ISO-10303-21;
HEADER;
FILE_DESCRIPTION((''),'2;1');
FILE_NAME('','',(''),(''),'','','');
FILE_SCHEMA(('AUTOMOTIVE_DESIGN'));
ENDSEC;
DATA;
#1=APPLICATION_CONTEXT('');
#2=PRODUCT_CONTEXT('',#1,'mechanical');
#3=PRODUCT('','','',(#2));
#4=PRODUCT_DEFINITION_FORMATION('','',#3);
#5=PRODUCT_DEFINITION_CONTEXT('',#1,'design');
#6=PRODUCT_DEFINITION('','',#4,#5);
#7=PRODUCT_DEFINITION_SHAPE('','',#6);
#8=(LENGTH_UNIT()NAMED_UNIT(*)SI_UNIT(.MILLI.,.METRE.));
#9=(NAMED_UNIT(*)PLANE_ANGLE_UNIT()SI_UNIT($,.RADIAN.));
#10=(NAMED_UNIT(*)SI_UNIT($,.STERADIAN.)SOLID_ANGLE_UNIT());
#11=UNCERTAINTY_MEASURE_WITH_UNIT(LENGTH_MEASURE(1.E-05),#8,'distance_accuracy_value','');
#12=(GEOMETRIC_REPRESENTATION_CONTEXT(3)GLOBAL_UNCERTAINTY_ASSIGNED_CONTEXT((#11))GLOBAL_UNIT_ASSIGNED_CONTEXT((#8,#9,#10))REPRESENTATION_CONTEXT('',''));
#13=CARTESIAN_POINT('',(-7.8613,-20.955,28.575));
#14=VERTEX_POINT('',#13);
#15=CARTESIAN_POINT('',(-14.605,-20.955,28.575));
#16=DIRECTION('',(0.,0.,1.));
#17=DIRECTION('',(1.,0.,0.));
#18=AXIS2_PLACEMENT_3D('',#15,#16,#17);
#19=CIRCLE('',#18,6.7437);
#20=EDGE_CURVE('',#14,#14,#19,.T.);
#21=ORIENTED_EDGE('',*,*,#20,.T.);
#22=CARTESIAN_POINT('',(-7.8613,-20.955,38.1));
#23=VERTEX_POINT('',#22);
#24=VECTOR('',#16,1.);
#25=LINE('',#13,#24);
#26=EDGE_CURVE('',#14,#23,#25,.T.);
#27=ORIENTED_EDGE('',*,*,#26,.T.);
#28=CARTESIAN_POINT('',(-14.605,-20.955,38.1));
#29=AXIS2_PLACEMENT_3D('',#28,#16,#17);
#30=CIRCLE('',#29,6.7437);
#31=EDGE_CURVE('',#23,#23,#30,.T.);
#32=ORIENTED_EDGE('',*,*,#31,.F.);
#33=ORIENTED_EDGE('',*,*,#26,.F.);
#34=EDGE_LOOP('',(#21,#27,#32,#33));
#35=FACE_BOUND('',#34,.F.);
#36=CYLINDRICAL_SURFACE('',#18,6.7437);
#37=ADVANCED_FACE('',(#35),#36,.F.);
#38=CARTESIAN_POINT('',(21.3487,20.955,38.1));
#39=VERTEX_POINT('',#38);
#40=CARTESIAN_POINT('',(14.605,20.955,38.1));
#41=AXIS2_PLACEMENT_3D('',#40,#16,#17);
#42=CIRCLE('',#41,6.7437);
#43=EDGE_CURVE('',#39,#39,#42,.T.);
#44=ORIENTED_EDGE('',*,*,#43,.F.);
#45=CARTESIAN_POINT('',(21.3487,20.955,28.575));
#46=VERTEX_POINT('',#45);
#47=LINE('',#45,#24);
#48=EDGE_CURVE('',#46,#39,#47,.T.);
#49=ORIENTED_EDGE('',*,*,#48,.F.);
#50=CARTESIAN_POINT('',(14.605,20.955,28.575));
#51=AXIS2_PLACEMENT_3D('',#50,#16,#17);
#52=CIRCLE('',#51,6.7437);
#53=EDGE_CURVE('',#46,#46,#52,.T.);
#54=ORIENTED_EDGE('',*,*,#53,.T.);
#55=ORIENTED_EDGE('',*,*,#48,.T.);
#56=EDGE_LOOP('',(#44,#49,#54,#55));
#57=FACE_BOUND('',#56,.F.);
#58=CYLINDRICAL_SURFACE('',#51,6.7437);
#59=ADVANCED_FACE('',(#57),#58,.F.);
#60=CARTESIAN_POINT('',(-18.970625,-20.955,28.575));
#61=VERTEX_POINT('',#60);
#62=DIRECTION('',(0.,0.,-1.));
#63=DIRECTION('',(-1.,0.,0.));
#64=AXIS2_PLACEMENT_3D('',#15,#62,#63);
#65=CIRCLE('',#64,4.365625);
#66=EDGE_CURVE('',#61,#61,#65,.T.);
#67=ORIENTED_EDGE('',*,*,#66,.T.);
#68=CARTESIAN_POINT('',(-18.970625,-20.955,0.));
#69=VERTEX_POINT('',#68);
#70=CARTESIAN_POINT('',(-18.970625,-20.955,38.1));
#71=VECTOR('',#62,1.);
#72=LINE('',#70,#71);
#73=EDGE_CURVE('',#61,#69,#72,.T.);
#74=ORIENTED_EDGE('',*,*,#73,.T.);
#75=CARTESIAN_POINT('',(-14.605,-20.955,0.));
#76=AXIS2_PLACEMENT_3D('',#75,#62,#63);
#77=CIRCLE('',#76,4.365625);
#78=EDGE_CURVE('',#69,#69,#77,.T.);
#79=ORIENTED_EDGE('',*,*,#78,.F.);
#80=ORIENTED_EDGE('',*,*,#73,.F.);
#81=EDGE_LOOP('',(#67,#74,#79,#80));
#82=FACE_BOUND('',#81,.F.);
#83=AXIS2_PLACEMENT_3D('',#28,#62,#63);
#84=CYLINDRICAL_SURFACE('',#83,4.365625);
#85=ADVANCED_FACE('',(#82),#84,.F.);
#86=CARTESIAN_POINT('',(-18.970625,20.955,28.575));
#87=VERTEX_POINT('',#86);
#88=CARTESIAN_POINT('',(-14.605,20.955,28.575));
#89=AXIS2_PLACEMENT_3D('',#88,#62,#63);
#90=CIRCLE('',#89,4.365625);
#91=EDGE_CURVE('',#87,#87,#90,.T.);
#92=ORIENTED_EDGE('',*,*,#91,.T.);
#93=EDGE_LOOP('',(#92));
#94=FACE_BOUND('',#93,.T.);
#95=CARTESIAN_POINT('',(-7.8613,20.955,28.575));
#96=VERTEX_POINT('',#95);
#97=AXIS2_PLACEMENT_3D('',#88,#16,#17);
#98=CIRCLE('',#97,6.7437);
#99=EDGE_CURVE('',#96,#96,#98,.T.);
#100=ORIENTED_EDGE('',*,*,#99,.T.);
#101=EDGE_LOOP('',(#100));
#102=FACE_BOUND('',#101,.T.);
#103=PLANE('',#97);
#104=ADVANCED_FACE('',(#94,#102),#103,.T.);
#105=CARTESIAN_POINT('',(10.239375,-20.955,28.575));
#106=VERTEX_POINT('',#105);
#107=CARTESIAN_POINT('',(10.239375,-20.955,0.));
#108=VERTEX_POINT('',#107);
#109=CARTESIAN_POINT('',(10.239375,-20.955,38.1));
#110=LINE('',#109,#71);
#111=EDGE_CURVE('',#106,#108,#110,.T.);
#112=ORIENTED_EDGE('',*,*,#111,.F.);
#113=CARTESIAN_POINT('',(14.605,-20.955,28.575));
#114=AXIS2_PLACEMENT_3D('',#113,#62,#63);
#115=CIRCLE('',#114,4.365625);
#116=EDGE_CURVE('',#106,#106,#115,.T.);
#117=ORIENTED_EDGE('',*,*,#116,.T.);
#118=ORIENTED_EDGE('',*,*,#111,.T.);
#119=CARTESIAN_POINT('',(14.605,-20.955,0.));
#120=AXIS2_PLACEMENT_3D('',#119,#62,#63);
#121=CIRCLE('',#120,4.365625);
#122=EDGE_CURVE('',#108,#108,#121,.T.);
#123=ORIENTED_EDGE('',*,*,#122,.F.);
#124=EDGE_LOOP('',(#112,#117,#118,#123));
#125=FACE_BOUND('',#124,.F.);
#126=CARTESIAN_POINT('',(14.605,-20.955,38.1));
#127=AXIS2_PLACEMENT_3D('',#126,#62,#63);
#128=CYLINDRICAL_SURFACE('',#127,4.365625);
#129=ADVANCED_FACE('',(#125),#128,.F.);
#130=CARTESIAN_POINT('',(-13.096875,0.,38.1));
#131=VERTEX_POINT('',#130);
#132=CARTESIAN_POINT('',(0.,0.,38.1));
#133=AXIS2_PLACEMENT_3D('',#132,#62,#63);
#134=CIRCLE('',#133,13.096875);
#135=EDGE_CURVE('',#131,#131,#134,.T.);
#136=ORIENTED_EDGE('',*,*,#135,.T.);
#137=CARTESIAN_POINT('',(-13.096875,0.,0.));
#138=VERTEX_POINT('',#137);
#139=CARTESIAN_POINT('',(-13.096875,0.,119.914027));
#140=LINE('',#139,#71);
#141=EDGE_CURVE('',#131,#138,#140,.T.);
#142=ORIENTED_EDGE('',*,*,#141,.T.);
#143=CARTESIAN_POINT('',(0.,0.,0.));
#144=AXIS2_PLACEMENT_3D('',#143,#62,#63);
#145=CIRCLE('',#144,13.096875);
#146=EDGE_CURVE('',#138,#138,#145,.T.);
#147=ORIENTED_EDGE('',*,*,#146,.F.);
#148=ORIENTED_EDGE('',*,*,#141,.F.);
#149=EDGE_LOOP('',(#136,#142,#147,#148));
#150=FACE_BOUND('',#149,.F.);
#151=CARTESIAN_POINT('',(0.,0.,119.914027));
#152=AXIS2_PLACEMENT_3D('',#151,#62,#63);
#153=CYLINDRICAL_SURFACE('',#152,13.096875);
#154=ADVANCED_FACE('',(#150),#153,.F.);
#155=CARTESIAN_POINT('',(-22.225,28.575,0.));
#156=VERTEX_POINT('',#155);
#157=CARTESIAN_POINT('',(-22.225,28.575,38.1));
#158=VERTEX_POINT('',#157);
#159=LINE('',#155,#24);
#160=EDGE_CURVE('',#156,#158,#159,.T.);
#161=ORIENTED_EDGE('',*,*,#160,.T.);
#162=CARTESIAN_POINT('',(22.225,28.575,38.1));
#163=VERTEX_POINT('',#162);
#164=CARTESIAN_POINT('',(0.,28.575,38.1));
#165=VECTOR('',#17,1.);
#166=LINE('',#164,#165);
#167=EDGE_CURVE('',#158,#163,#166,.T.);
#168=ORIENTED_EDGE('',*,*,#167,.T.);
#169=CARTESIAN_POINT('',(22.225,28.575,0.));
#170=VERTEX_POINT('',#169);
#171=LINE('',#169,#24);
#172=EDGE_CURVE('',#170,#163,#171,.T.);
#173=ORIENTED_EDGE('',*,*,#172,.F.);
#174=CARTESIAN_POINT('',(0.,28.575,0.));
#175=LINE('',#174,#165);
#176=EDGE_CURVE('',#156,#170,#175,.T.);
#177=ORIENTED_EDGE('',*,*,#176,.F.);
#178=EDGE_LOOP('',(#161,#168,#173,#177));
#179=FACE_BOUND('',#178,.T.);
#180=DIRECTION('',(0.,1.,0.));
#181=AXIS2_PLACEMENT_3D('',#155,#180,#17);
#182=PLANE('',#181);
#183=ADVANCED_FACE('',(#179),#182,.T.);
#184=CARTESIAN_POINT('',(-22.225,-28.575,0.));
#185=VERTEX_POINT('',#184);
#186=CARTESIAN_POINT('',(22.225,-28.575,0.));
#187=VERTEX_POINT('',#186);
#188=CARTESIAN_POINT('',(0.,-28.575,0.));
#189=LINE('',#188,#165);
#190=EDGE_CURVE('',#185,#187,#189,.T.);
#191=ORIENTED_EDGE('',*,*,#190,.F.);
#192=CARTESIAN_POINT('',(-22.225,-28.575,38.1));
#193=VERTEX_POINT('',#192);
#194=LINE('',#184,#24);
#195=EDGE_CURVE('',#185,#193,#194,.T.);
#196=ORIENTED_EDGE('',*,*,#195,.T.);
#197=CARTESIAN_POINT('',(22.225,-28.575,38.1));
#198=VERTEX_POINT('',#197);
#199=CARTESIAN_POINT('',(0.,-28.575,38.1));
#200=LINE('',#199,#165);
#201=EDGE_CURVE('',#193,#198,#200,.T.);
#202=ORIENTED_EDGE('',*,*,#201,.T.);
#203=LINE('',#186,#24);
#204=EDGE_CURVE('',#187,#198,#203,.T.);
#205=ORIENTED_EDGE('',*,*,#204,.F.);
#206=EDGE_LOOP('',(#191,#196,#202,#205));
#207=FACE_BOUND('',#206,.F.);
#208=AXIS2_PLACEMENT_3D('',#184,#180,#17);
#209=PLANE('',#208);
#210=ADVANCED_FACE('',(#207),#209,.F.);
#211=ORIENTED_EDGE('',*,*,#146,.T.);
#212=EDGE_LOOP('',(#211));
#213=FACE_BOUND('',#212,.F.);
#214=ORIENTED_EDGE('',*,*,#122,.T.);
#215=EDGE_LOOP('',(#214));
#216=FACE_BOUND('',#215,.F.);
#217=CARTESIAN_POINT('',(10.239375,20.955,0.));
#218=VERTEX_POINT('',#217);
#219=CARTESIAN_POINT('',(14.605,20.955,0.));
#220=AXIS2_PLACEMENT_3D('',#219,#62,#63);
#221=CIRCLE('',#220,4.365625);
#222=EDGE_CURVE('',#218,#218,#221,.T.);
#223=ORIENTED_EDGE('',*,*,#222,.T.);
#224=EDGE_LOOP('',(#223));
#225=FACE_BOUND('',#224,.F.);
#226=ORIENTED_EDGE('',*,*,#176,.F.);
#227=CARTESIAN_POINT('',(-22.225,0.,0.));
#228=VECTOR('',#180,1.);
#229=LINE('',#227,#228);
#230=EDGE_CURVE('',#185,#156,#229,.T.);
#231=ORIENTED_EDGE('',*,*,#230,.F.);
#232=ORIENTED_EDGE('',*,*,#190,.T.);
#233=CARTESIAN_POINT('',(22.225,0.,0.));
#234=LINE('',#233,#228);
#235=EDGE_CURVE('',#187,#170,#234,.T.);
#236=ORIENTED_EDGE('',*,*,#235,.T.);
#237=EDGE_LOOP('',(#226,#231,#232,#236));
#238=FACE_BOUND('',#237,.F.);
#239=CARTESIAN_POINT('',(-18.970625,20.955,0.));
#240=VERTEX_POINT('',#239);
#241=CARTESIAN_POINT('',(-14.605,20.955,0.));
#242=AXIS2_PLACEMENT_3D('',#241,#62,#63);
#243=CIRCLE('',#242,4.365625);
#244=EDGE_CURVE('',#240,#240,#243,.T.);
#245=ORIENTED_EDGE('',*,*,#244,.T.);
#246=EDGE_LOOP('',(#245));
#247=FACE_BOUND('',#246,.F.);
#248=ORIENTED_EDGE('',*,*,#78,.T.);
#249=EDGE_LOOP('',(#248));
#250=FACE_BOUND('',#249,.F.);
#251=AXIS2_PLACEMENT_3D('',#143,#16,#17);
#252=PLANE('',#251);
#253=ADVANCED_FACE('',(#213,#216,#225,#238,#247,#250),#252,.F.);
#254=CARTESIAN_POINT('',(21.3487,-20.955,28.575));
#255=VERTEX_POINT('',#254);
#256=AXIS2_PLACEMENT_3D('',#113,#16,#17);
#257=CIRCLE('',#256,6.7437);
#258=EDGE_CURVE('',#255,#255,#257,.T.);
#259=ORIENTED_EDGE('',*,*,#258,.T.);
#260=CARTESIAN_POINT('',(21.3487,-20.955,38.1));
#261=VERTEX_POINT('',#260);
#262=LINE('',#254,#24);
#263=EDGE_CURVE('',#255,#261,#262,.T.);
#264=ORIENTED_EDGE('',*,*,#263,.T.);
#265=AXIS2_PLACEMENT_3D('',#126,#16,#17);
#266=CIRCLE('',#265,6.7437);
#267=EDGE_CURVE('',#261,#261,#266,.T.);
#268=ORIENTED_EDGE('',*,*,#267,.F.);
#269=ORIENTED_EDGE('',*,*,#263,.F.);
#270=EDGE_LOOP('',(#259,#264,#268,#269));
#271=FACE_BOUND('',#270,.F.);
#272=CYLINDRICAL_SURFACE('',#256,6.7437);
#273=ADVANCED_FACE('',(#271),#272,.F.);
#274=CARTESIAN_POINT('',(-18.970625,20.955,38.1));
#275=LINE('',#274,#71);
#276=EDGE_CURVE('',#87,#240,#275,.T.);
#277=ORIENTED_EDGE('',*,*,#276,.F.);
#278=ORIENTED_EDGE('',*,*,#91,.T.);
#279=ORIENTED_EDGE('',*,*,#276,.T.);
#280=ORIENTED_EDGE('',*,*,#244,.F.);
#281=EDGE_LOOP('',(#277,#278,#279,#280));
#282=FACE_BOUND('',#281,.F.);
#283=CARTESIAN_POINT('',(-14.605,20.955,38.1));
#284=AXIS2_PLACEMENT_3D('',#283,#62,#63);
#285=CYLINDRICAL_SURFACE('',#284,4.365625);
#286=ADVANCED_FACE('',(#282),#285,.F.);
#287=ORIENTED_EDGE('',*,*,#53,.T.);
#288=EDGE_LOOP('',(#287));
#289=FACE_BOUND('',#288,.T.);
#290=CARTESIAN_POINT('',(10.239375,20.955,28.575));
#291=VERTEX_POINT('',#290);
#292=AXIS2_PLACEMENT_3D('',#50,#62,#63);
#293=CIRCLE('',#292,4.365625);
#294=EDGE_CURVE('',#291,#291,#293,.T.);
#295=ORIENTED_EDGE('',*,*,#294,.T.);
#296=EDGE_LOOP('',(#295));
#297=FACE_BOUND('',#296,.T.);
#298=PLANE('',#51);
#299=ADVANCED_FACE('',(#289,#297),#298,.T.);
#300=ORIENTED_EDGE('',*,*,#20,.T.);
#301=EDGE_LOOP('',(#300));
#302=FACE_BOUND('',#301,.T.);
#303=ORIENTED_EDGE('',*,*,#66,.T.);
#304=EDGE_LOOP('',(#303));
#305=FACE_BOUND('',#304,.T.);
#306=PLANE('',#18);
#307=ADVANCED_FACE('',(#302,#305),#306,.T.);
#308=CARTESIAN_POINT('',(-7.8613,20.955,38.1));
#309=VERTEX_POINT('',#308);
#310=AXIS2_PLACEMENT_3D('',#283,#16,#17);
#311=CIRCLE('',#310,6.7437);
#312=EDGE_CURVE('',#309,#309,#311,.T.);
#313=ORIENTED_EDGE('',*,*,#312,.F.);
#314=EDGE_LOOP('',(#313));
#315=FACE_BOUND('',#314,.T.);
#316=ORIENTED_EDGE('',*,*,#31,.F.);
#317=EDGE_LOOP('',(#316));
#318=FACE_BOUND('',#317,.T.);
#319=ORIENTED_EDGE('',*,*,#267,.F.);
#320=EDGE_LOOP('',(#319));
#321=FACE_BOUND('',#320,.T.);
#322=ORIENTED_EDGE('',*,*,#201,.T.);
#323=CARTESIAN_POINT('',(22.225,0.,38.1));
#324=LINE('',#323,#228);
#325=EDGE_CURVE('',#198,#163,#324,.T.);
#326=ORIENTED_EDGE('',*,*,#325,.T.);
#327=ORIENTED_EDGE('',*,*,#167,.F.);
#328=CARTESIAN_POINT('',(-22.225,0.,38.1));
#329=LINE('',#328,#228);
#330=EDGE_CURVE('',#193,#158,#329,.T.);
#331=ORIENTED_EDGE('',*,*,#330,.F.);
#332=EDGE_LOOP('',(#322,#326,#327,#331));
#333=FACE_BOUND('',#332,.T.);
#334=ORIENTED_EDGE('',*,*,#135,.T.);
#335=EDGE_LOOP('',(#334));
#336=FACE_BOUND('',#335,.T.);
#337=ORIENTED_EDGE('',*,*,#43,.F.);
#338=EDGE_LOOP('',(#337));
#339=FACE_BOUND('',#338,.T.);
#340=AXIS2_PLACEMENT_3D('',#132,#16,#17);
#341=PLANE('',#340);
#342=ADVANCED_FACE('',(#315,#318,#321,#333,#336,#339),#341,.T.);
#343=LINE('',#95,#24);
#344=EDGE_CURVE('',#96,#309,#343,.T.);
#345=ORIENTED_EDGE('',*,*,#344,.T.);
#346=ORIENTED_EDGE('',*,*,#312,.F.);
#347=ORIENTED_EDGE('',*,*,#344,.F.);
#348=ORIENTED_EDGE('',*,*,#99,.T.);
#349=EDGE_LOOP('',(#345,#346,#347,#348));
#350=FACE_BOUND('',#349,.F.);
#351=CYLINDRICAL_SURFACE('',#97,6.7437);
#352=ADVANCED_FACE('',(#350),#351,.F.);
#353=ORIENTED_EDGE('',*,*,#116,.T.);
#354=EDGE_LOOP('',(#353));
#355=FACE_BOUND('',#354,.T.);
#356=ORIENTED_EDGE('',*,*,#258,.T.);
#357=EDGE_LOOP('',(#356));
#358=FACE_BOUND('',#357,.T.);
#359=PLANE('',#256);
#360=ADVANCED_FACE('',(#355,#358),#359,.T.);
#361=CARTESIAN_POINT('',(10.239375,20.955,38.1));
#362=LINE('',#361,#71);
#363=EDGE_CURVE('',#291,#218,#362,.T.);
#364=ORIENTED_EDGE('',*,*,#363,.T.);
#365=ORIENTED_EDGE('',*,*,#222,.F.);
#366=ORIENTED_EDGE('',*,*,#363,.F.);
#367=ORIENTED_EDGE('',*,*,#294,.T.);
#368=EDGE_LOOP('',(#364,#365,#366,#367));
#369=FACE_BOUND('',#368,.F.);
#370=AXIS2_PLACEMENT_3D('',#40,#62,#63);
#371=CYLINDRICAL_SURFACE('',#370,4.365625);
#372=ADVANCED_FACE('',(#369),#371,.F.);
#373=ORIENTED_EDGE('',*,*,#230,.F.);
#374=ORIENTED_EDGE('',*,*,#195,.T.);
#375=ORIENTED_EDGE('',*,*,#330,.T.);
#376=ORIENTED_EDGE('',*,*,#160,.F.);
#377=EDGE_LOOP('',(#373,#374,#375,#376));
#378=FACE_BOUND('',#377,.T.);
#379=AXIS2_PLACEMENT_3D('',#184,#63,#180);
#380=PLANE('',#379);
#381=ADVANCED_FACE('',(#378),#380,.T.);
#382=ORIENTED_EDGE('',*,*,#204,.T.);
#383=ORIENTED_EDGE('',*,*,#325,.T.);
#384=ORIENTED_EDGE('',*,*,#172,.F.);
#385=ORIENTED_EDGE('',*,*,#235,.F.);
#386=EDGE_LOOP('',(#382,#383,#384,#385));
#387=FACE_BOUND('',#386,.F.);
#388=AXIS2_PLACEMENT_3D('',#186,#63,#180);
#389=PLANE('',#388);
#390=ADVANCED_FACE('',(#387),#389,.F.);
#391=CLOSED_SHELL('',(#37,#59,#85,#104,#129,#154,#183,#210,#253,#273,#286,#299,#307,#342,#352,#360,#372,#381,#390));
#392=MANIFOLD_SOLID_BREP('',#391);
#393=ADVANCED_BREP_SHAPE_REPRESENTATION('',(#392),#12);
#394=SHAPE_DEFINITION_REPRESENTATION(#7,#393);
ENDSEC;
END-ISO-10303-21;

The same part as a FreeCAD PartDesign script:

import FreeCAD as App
import Part
import Sketcher

V = App.Vector
Q = App.Units.Quantity

doc = App.newDocument("Part")
params = doc.addObject("Spreadsheet::Sheet", "Params")
for row, (alias, value) in enumerate([
    ("sketch1_width", "1.75 in"),
    ("sketch1_height", "2.25 in"),
    ("pad1_length", "1.5 in"),
    ("sketch2_diameter", "1.03125 in"),
    ("hole_diameter", "1.03125 in"),
    ("sketch3_diameter", "0.34375 in"),
    ("hole2_diameter", "0.34375 in"),
    ("hole2_cbore_diameter", "0.531 in"),
    ("hole2_cbore_depth", "0.375 in"),
], start=1):
    params.set(f"A{row}", alias)
    params.set(f"B{row}", "=" + value)
    params.setAlias(f"B{row}", alias)

body = doc.addObject("PartDesign::Body", "Body")

sketch1 = body.newObject("Sketcher::SketchObject", "Sketch")
sketch1.AttachmentSupport = (doc.getObject("XY_Plane"), [""])
sketch1.MapMode = "FlatFace"
sketch1.addGeometry(Part.LineSegment(V(-22, 29, 0), V(-22, -29, 0)), False)
sketch1.addGeometry(Part.LineSegment(V(-22, -29, 0), V(22, -29, 0)), False)
sketch1.addGeometry(Part.LineSegment(V(22, -29, 0), V(22, 29, 0)), False)
sketch1.addGeometry(Part.LineSegment(V(22, 29, 0), V(-22, 29, 0)), False)
sketch1.addConstraint(Sketcher.Constraint("Coincident", 0, 2, 1, 1))
sketch1.addConstraint(Sketcher.Constraint("Coincident", 1, 2, 2, 1))
sketch1.addConstraint(Sketcher.Constraint("Coincident", 2, 2, 3, 1))
sketch1.addConstraint(Sketcher.Constraint("Coincident", 3, 2, 0, 1))
sketch1.addConstraint(Sketcher.Constraint("Vertical", 0))
sketch1.addConstraint(Sketcher.Constraint("Horizontal", 1))
sketch1.addConstraint(Sketcher.Constraint("Vertical", 2))
sketch1.addConstraint(Sketcher.Constraint("Horizontal", 3))
sketch1.addConstraint(Sketcher.Constraint("Symmetric", 0, 2, 2, 2, -1, 1))
sketch1.addConstraint(Sketcher.Constraint("DistanceX", 1, 1, 1, 2, Q("1.75 in")))
sketch1.addConstraint(Sketcher.Constraint("DistanceY", 0, 2, 0, 1, Q("2.25 in")))
sketch1.setExpression("Constraints[9]", "Params.sketch1_width")
sketch1.setExpression("Constraints[10]", "Params.sketch1_height")
pad1 = body.newObject("PartDesign::Pad", "Pad")
pad1.Profile = sketch1
pad1.setExpression("Length", "Params.pad1_length")

sketch2 = body.newObject("Sketcher::SketchObject", "Sketch001")
sketch2.AttachmentSupport = (doc.getObject("XY_Plane"), [""])
sketch2.MapMode = "FlatFace"
sketch2.AttachmentOffset = App.Placement(V(0, 0, 1.5 * 25.4), App.Rotation())
sketch2.addGeometry(Part.Circle(V(0, 0, 0), V(0, 0, 1), 13), False)
sketch2.addConstraint(Sketcher.Constraint("Coincident", 0, 3, -1, 1))
sketch2.addConstraint(Sketcher.Constraint("Diameter", 0, Q("1.03125 in")))
sketch2.setExpression("Constraints[1]", "Params.sketch2_diameter")
doc.recompute()
hole = body.newObject("PartDesign::Hole", "Hole")
hole.Profile = sketch2
hole.ThreadType = "None"
hole.setExpression("Diameter", "Params.hole_diameter")
hole.DepthType = "ThroughAll"

sketch3 = body.newObject("Sketcher::SketchObject", "Sketch002")
sketch3.AttachmentSupport = (doc.getObject("XY_Plane"), [""])
sketch3.MapMode = "FlatFace"
sketch3.AttachmentOffset = App.Placement(V(0, 0, 1.5 * 25.4), App.Rotation())
sketch3.addGeometry(Part.Circle(V(-14.6, 21, 0), V(0, 0, 1), 4.4), False)
sketch3.addGeometry(Part.Circle(V(14.6, 21, 0), V(0, 0, 1), 4.4), False)
sketch3.addGeometry(Part.Circle(V(14.6, -21, 0), V(0, 0, 1), 4.4), False)
sketch3.addGeometry(Part.Circle(V(-14.6, -21, 0), V(0, 0, 1), 4.4), False)
sketch3.addConstraint(Sketcher.Constraint("Equal", 0, 1))
sketch3.addConstraint(Sketcher.Constraint("Equal", 1, 2))
sketch3.addConstraint(Sketcher.Constraint("Equal", 2, 3))
sketch3.addConstraint(Sketcher.Constraint("Symmetric", 0, 3, 2, 3, -1, 1))
sketch3.addConstraint(Sketcher.Constraint("Symmetric", 1, 3, 3, 3, -1, 1))
sketch3.addConstraint(Sketcher.Constraint("Symmetric", 0, 3, 1, 3, -2))
sketch3.addConstraint(Sketcher.Constraint("Diameter", 0, Q("0.34375 in")))
sketch3.addConstraint(Sketcher.Constraint("DistanceX", 0, 3, 1, 3, Q("1.15 in")))
sketch3.addConstraint(Sketcher.Constraint("DistanceY", 2, 3, 1, 3, Q("1.65 in")))
sketch3.setExpression("Constraints[6]", "Params.sketch3_diameter")
doc.recompute()
hole2 = body.newObject("PartDesign::Hole", "Hole001")
hole2.Profile = sketch3
hole2.ThreadType = "None"
hole2.setExpression("Diameter", "Params.hole2_diameter")
hole2.DepthType = "ThroughAll"
hole2.HoleCutType = "Counterbore"
hole2.setExpression("HoleCutDiameter", "Params.hole2_cbore_diameter")
hole2.setExpression("HoleCutDepth", "Params.hole2_cbore_depth")

doc.recompute()
